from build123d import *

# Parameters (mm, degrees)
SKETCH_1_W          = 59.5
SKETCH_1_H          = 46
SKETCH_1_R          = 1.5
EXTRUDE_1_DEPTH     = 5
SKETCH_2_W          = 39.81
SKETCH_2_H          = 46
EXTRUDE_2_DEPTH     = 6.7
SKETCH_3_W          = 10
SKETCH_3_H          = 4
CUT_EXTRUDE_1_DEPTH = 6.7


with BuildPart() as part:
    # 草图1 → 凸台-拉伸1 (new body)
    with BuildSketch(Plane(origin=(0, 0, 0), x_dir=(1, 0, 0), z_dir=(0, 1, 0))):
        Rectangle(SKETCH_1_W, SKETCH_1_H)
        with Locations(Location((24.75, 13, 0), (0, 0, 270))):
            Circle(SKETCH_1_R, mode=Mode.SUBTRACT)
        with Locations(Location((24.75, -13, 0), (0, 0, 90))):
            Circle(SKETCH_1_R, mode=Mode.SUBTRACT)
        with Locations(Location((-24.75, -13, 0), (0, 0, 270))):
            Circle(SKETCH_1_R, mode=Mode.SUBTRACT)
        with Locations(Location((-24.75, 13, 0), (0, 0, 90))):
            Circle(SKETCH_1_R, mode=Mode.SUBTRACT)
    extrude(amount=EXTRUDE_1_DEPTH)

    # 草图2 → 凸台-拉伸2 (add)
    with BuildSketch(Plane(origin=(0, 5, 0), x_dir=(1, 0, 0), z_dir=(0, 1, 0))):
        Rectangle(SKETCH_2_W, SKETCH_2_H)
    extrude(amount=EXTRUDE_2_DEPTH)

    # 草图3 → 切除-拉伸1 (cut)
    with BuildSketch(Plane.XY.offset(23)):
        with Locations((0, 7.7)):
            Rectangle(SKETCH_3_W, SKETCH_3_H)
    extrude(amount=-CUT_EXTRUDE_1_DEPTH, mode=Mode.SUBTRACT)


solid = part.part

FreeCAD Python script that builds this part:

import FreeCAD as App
import Part
import Sketcher
Q = App.Units.Quantity


def add_polygon(sketch, points):
    """Adds a closed chain of lines whose ends are joined by coincident constraints."""
    first, n = sketch.GeometryCount, len(points)
    for a, b in zip(points, points[1:] + points[:1]):
        sketch.addGeometry(Part.LineSegment(App.Vector(*a, 0), App.Vector(*b, 0)), False)
    for i in range(n):
        sketch.addConstraint(Sketcher.Constraint("Coincident", first + i, 2, first + (i + 1) % n, 1))

doc = App.newDocument("Part")
body = doc.addObject("PartDesign::Body", "Body")

# Sketch on XZ plane
sketch1 = body.newObject("Sketcher::SketchObject", "Sketch")
sketch1.AttachmentSupport = (doc.getObject("XZ_Plane"), [""])
sketch1.MapMode = "FlatFace"
add_polygon(sketch1, [(-29.75, -23), (-29.75, 23), (29.75, 23), (29.75, -23)])  # lines 0-3
sketch1.addGeometry(Part.Circle(App.Vector(-24.75, 13, 0), App.Vector(0, 0, 1), 1.5), False)  # 4
sketch1.addGeometry(Part.Circle(App.Vector(24.75, 13, 0), App.Vector(0, 0, 1), 1.5), False)  # 5
sketch1.addGeometry(Part.Circle(App.Vector(-24.75, -13, 0), App.Vector(0, 0, 1), 1.5), False)  # 6
sketch1.addGeometry(Part.Circle(App.Vector(24.75, -13, 0), App.Vector(0, 0, 1), 1.5), False)  # 7
sketch1.addConstraint([
    Sketcher.Constraint("Vertical", 0),
    Sketcher.Constraint("Horizontal", 1),
    Sketcher.Constraint("Vertical", 2),
    Sketcher.Constraint("Horizontal", 3),
    Sketcher.Constraint("Equal", 4, 5),
    Sketcher.Constraint("Equal", 5, 6),
    Sketcher.Constraint("Equal", 6, 7),
    Sketcher.Constraint("Symmetric", 5, 3, 6, 3, -1, 1),
    Sketcher.Constraint("Symmetric", 4, 3, 7, 3, -1, 1),
    Sketcher.Constraint("Symmetric", 0, 2, 2, 2, -1, 1),
    Sketcher.Constraint("Symmetric", 4, 3, 5, 3, -2),
    Sketcher.Constraint("Diameter", 4, Q("3 mm")),
    Sketcher.Constraint("DistanceY", 0, 1, 0, 2, Q("46 mm")),
    Sketcher.Constraint("DistanceX", 1, 1, 1, 2, Q("59.5 mm")),
    Sketcher.Constraint("DistanceY", -1, 1, 4, 3, Q("13 mm")),
    Sketcher.Constraint("DistanceX", 0, 2, 4, 3, Q("5 mm")),
])
pad1 = body.newObject("PartDesign::Pad", "Pad")
pad1.Profile = sketch1
pad1.Length = 5
pad1.Reversed = True

# Sketch on XZ plane
sketch2 = body.newObject("Sketcher::SketchObject", "Sketch001")
sketch2.AttachmentSupport = (doc.getObject("XZ_Plane"), [""])
sketch2.MapMode = "FlatFace"
sketch2.AttachmentOffset = App.Placement(App.Vector(0, 0, -5), App.Rotation())
add_polygon(sketch2, [(-19.905, -23), (-19.905, 23), (19.905, 23), (19.905, -23)])  # lines 0-3
sketch2.addConstraint([
    Sketcher.Constraint("Vertical", 0),
    Sketcher.Constraint("Horizontal", 1),
    Sketcher.Constraint("Vertical", 2),
    Sketcher.Constraint("Horizontal", 3),
    Sketcher.Constraint("Symmetric", 0, 2, 2, 2, -1, 1),
    Sketcher.Constraint("DistanceY", 0, 1, 0, 2, Q("46 mm")),
    Sketcher.Constraint("DistanceX", 1, 1, 1, 2, Q("39.81 mm")),
])
pad2 = body.newObject("PartDesign::Pad", "Pad001")
pad2.Profile = sketch2
pad2.Length = 6.7
pad2.Reversed = True

# Sketch on XY plane
sketch3 = body.newObject("Sketcher::SketchObject", "Sketch002")
sketch3.AttachmentSupport = (doc.getObject("XY_Plane"), [""])
sketch3.MapMode = "FlatFace"
sketch3.AttachmentOffset = App.Placement(App.Vector(0, 0, 23), App.Rotation())
add_polygon(sketch3, [(-5, 9.7), (-5, 5.7), (5, 5.7), (5, 9.7)])  # lines 0-3
sketch3.addConstraint([
    Sketcher.Constraint("Vertical", 0),
    Sketcher.Constraint("Horizontal", 1),
    Sketcher.Constraint("Vertical", 2),
    Sketcher.Constraint("Horizontal", 3),
    Sketcher.Constraint("DistanceX", 1, 1, 1, 2, Q("10 mm")),
    Sketcher.Constraint("DistanceY", 0, 2, 0, 1, Q("4 mm")),
    Sketcher.Constraint("DistanceX", 0, 2, -1, 1, Q("5 mm")),
    Sketcher.Constraint("DistanceY", -1, 1, 0, 2, Q("5.7 mm")),
])
pocket1 = body.newObject("PartDesign::Pocket", "Pocket")
pocket1.Profile = sketch3
pocket1.Length = 6.7

doc.recompute()
